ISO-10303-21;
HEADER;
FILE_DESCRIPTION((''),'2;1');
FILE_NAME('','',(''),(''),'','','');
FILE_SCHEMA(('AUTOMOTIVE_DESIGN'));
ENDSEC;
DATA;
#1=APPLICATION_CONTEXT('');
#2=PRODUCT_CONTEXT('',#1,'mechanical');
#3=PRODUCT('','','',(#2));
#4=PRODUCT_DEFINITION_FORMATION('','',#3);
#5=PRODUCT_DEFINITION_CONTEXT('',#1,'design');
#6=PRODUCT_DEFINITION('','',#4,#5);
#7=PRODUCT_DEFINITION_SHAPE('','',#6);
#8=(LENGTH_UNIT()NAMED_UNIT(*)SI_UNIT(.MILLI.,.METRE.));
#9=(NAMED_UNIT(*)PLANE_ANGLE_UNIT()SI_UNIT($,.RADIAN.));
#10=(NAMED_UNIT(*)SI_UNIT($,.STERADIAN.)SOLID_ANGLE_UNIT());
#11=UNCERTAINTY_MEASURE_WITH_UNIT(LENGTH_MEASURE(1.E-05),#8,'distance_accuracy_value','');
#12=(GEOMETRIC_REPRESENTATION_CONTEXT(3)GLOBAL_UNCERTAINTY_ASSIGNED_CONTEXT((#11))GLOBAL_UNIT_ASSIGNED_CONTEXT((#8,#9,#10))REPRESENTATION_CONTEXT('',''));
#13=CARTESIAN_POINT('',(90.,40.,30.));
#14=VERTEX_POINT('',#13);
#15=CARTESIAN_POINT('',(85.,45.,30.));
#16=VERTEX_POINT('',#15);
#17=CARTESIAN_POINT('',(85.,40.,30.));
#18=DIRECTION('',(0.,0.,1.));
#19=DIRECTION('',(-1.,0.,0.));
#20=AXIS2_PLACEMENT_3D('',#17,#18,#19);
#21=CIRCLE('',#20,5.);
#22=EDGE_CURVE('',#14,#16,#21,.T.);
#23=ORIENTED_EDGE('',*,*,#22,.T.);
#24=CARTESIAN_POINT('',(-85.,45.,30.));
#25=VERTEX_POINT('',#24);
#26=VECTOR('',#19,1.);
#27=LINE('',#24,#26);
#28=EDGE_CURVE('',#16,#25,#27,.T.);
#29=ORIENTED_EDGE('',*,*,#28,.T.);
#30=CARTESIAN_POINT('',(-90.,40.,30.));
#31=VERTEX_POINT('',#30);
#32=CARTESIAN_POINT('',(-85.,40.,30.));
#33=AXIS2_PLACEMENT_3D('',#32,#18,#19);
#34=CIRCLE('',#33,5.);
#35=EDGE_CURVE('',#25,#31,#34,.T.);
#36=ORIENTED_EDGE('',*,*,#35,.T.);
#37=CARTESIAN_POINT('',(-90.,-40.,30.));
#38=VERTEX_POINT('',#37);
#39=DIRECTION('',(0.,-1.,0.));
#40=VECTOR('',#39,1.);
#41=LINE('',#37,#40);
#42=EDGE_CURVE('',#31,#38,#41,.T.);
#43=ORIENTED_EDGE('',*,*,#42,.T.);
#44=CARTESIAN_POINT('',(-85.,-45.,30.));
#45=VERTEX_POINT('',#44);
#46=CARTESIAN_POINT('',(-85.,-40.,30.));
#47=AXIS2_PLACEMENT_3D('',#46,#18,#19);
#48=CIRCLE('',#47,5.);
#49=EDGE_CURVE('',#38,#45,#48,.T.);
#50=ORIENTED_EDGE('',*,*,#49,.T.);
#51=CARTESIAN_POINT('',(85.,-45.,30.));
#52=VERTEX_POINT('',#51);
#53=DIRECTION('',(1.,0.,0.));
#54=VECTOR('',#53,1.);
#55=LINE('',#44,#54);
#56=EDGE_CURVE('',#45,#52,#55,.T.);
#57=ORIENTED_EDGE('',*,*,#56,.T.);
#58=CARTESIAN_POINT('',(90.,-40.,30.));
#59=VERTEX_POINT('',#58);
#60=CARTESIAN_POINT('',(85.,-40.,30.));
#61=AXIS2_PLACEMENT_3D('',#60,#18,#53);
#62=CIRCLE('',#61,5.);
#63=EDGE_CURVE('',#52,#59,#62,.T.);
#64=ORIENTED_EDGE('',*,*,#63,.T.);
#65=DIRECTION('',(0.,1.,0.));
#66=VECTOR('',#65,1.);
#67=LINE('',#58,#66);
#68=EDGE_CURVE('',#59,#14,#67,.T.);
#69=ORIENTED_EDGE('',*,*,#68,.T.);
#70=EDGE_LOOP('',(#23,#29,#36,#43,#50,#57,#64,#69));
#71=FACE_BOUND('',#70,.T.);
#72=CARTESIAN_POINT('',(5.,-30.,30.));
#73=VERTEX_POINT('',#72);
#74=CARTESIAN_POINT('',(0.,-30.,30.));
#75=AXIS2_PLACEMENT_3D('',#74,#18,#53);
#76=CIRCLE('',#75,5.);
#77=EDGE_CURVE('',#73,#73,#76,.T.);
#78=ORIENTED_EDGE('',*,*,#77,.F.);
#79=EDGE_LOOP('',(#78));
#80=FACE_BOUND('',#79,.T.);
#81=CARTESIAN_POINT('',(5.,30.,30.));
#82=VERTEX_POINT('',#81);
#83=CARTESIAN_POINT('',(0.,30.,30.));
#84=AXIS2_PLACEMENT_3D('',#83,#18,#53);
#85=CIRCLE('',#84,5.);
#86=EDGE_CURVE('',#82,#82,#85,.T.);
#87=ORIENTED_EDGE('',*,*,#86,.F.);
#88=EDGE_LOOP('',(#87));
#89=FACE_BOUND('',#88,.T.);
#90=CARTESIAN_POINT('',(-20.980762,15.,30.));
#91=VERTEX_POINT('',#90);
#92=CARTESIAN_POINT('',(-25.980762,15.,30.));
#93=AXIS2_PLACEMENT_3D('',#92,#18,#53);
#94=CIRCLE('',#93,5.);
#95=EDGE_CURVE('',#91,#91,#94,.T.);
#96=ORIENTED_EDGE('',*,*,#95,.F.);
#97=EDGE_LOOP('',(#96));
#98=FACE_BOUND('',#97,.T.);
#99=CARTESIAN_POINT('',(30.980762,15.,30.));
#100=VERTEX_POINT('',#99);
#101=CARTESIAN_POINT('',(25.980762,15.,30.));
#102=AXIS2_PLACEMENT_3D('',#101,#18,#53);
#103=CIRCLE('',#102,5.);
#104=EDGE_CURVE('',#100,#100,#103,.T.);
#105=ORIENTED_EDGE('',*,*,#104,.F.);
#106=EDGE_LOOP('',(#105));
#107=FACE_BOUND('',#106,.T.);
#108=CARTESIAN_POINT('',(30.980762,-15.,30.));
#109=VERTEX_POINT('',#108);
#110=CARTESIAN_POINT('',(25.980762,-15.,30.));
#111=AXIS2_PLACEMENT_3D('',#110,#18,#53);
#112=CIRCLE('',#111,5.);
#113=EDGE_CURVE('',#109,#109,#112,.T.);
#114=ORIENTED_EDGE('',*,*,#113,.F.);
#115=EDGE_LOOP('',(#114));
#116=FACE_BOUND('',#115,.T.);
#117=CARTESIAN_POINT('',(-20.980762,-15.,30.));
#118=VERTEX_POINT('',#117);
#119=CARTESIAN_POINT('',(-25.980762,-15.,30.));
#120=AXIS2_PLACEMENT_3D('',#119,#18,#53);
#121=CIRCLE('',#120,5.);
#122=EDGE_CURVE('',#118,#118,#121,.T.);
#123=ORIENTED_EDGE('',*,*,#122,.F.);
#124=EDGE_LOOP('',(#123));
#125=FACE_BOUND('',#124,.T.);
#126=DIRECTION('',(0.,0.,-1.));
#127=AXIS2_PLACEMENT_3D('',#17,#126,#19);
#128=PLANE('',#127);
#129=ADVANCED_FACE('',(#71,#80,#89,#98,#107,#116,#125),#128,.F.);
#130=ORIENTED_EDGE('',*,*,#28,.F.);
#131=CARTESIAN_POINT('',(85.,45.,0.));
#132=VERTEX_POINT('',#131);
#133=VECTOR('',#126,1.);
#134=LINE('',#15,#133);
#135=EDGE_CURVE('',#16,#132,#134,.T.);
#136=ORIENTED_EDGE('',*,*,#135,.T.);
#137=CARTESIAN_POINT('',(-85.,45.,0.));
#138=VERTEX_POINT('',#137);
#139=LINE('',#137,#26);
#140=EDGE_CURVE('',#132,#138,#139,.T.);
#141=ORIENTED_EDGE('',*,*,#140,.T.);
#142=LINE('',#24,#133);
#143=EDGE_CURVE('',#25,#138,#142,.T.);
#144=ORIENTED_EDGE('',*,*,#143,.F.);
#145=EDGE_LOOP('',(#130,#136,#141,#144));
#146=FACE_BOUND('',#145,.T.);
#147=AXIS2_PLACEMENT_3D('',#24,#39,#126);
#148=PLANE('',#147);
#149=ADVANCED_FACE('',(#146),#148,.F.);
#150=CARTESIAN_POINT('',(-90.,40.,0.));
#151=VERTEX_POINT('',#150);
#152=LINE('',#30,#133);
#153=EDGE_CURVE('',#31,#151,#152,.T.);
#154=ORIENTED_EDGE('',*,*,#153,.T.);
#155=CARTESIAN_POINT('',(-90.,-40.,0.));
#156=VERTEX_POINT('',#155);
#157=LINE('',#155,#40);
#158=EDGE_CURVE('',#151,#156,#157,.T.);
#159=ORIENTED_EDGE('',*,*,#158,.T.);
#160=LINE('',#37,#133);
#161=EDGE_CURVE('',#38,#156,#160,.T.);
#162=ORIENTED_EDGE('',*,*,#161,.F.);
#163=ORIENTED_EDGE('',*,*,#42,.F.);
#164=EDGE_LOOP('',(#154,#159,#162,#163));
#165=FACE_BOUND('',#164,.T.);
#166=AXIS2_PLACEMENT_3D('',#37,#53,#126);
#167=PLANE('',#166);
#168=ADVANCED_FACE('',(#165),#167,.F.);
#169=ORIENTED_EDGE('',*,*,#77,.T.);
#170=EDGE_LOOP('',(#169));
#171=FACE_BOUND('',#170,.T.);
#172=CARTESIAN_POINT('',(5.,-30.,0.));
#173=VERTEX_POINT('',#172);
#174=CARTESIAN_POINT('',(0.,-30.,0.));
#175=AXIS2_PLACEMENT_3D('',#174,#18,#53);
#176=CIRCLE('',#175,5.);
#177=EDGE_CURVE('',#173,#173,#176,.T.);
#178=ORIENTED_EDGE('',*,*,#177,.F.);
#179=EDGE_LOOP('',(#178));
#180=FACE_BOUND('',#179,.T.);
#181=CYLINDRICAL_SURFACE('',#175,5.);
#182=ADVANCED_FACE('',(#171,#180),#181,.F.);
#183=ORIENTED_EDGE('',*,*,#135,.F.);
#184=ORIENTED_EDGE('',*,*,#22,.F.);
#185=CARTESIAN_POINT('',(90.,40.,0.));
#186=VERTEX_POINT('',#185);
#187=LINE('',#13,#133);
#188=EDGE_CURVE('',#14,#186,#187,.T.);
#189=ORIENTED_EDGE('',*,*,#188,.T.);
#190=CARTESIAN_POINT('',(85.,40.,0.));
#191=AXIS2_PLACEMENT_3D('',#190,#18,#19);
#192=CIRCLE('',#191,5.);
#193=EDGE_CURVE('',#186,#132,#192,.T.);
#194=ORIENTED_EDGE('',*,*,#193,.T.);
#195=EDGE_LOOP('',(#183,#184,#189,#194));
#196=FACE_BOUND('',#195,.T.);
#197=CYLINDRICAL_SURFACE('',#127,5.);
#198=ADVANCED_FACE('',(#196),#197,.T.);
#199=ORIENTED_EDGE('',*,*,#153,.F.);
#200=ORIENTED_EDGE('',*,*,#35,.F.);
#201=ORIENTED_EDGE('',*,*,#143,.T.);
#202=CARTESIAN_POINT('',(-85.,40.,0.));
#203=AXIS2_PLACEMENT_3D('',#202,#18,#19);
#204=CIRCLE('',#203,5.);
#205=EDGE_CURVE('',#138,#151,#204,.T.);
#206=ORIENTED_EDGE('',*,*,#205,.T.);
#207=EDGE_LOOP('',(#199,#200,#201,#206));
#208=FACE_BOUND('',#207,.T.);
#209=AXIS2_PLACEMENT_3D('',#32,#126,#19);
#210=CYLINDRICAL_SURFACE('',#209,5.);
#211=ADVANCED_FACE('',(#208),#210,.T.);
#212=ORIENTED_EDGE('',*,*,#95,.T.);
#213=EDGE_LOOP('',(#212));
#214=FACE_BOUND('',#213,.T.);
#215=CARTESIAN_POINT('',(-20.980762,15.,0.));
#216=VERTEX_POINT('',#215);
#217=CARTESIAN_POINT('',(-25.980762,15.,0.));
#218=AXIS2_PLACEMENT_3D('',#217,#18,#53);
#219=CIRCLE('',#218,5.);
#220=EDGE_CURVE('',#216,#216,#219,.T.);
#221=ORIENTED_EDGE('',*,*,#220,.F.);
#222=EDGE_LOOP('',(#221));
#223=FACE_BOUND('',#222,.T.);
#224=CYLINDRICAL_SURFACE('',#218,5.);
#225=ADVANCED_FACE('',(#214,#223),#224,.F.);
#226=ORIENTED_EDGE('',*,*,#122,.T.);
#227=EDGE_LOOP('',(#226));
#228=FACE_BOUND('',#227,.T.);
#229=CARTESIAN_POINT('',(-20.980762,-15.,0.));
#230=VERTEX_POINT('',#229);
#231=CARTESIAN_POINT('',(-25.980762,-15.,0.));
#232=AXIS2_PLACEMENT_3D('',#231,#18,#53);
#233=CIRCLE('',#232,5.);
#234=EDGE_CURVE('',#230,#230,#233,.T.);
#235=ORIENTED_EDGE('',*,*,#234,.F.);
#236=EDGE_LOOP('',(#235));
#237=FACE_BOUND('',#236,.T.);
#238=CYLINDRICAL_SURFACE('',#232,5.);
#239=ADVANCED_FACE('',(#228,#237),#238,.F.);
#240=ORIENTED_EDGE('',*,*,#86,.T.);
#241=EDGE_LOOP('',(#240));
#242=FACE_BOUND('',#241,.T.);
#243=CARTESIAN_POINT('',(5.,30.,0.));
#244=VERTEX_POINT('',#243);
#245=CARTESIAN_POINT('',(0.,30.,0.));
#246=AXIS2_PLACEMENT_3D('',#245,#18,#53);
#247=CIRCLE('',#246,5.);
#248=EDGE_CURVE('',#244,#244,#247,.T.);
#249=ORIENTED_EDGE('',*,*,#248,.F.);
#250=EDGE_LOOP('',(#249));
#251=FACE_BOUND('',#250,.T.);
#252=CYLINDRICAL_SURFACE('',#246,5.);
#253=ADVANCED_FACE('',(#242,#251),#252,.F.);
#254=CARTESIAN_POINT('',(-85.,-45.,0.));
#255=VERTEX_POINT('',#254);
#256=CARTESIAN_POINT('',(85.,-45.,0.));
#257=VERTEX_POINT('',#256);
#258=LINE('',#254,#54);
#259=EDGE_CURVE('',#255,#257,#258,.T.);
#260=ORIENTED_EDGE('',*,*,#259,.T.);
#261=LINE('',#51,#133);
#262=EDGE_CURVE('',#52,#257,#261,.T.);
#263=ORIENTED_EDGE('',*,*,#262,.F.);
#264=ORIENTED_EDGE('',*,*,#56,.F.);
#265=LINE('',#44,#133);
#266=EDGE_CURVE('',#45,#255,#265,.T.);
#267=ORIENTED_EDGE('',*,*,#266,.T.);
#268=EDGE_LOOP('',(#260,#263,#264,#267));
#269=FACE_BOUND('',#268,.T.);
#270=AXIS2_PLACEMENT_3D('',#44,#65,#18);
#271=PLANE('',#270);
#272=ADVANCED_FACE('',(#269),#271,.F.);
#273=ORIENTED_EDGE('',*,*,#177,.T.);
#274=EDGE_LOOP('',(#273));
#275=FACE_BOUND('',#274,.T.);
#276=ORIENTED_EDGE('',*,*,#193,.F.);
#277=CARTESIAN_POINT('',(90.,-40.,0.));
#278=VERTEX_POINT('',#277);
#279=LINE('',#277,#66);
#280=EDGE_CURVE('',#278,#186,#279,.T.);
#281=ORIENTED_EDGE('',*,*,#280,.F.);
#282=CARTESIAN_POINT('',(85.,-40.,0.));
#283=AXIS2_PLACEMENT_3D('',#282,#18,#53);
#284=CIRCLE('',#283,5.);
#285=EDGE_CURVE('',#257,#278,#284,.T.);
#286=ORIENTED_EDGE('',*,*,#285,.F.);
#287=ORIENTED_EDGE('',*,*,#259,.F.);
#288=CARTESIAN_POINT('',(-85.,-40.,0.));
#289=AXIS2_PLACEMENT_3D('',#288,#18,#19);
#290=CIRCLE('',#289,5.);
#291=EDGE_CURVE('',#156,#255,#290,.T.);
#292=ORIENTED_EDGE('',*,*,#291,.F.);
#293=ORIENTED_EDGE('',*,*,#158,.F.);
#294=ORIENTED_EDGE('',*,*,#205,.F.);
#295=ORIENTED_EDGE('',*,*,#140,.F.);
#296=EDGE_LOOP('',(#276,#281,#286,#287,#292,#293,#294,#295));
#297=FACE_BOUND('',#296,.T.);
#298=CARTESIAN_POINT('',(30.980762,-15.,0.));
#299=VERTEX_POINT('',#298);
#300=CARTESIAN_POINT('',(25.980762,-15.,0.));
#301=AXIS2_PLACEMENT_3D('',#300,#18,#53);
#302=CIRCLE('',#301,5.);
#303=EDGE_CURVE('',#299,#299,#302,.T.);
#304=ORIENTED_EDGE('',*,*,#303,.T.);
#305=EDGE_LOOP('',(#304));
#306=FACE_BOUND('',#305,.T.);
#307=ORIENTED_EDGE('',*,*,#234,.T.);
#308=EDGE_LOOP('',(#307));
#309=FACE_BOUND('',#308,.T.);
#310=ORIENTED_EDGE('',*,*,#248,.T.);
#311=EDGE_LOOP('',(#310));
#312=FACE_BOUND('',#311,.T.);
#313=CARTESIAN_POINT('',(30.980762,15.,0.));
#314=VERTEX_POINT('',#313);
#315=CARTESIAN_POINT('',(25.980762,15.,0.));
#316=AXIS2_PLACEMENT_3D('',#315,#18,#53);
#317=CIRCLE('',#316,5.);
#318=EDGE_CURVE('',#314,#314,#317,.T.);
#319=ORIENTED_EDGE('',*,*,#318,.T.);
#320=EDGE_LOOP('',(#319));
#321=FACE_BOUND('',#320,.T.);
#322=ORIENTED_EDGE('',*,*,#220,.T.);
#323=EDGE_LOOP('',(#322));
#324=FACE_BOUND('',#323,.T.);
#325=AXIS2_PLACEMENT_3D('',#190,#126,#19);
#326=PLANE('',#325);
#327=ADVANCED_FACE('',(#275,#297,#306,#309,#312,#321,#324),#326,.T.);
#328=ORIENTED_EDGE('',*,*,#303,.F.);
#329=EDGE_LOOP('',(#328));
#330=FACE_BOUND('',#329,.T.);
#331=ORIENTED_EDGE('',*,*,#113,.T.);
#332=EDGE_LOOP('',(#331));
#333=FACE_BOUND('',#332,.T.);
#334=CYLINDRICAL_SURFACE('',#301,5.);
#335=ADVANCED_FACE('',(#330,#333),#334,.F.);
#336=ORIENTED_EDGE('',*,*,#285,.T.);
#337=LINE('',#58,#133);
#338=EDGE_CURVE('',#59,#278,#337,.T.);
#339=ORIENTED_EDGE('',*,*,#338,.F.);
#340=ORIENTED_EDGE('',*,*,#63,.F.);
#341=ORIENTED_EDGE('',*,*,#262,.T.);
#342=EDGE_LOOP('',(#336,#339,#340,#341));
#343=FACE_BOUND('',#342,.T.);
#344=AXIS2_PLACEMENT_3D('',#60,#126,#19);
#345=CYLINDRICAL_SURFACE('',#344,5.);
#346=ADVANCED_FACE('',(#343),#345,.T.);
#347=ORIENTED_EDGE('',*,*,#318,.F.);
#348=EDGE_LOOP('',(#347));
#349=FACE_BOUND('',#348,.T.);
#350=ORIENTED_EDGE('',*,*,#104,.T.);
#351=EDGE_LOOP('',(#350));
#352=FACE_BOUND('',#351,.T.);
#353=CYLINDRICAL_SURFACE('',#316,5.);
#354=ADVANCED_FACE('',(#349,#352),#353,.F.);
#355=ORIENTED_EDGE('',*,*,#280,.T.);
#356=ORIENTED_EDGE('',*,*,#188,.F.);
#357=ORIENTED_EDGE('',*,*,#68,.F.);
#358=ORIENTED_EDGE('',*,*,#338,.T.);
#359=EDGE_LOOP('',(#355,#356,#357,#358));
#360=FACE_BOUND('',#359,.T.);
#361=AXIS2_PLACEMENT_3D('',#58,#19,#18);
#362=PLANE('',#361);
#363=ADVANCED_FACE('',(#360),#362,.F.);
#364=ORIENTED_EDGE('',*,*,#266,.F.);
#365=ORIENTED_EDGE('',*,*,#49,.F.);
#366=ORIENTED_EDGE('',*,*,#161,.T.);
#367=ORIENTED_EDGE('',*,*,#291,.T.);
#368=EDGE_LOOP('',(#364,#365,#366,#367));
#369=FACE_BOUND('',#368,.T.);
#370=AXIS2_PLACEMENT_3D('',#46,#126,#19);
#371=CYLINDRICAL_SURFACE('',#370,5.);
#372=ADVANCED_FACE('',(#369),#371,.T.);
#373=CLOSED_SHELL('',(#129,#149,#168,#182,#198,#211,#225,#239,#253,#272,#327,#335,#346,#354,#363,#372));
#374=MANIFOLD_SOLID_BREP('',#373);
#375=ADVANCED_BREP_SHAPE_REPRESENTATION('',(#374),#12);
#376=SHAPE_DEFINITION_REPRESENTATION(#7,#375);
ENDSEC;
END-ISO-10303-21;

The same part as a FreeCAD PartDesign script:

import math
import FreeCAD as App
import Part
import Sketcher
from FreeCAD import Vector

doc = App.newDocument("Part")
body = doc.addObject("PartDesign::Body", "Body")

sketch1 = body.newObject("Sketcher::SketchObject", "Sketch")
sketch1.AttachmentSupport = (doc.getObject("XY_Plane"), [""])
sketch1.MapMode = "FlatFace"
sketch1.addGeometry(Part.LineSegment(Vector(-85, -45, 0), Vector(85, -45, 0)), False)
sketch1.addGeometry(Part.ArcOfCircle(Part.Circle(Vector(85, -40, 0), Vector(0, 0, 1), 5), math.radians(-90), math.radians(0)), False)
sketch1.addGeometry(Part.LineSegment(Vector(90, -40, 0), Vector(90, 40, 0)), False)
sketch1.addGeometry(Part.ArcOfCircle(Part.Circle(Vector(85, 40, 0), Vector(0, 0, 1), 5), math.radians(0), math.radians(90)), False)
sketch1.addGeometry(Part.LineSegment(Vector(85, 45, 0), Vector(-85, 45, 0)), False)
sketch1.addGeometry(Part.ArcOfCircle(Part.Circle(Vector(-85, 40, 0), Vector(0, 0, 1), 5), math.radians(90), math.radians(180)), False)
sketch1.addGeometry(Part.LineSegment(Vector(-90, 40, 0), Vector(-90, -40, 0)), False)
sketch1.addGeometry(Part.ArcOfCircle(Part.Circle(Vector(-85, -40, 0), Vector(0, 0, 1), 5), math.radians(180), math.radians(270)), False)
sketch1.addConstraint(Sketcher.Constraint("Tangent", 0, 2, 1, 1))
sketch1.addConstraint(Sketcher.Constraint("Tangent", 1, 2, 2, 1))
sketch1.addConstraint(Sketcher.Constraint("Tangent", 2, 2, 3, 1))
sketch1.addConstraint(Sketcher.Constraint("Tangent", 3, 2, 4, 1))
sketch1.addConstraint(Sketcher.Constraint("Tangent", 4, 2, 5, 1))
sketch1.addConstraint(Sketcher.Constraint("Tangent", 5, 2, 6, 1))
sketch1.addConstraint(Sketcher.Constraint("Tangent", 6, 2, 7, 1))
sketch1.addConstraint(Sketcher.Constraint("Tangent", 7, 2, 0, 1))
sketch1.addConstraint(Sketcher.Constraint("Horizontal", 0))
sketch1.addConstraint(Sketcher.Constraint("Vertical", 2))
sketch1.addConstraint(Sketcher.Constraint("Horizontal", 4))
sketch1.addConstraint(Sketcher.Constraint("Vertical", 6))
sketch1.addConstraint(Sketcher.Constraint("Equal", 1, 3))
sketch1.addConstraint(Sketcher.Constraint("Equal", 3, 5))
sketch1.addConstraint(Sketcher.Constraint("Equal", 5, 7))
sketch1.addConstraint(Sketcher.Constraint("Symmetric", 1, 3, 5, 3, -1, 1))
sketch1.addConstraint(Sketcher.Constraint("Radius", 1, 5.0))
sketch1.addConstraint(Sketcher.Constraint("DistanceX", 0, 1, 0, 2, 170.0))
sketch1.addConstraint(Sketcher.Constraint("DistanceY", 2, 1, 2, 2, 80.0))
pad1 = body.newObject("PartDesign::Pad", "Pad")
pad1.Profile = sketch1
pad1.Length = 30

sketch2 = body.newObject("Sketcher::SketchObject", "Sketch001")
sketch2.AttachmentSupport = (doc.getObject("XY_Plane"), [""])
sketch2.MapMode = "FlatFace"
sketch2.AttachmentOffset = App.Placement(Vector(0, 0, 30), App.Rotation())
sketch2.addGeometry(Part.Circle(Vector(0, 30, 0), Vector(0, 0, 1), 5), False)
sketch2.addGeometry(Part.Circle(Vector(26, 15, 0), Vector(0, 0, 1), 5), False)
sketch2.addGeometry(Part.Circle(Vector(26, -15, 0), Vector(0, 0, 1), 5), False)
sketch2.addGeometry(Part.Circle(Vector(0, -30, 0), Vector(0, 0, 1), 5), False)
sketch2.addGeometry(Part.Circle(Vector(-26, -15, 0), Vector(0, 0, 1), 5), False)
sketch2.addGeometry(Part.Circle(Vector(-26, 15, 0), Vector(0, 0, 1), 5), False)
sketch2.addConstraint(Sketcher.Constraint("Equal", 0, 1))
sketch2.addConstraint(Sketcher.Constraint("Equal", 1, 2))
sketch2.addConstraint(Sketcher.Constraint("Equal", 2, 3))
sketch2.addConstraint(Sketcher.Constraint("Equal", 3, 4))
sketch2.addConstraint(Sketcher.Constraint("Equal", 4, 5))
sketch2.addConstraint(Sketcher.Constraint("Symmetric", 0, 3, 3, 3, -1, 1))
sketch2.addConstraint(Sketcher.Constraint("Symmetric", 1, 3, 4, 3, -1, 1))
sketch2.addConstraint(Sketcher.Constraint("Symmetric", 2, 3, 5, 3, -1, 1))
sketch2.addConstraint(Sketcher.Constraint("Symmetric", 2, 3, 4, 3, -2))
sketch2.addConstraint(Sketcher.Constraint("PointOnObject", 0, 3, -2))
sketch2.addConstraint(Sketcher.Constraint("Diameter", 0, 10.0))
sketch2.addConstraint(Sketcher.Constraint("DistanceY", -1, 1, 0, 3, 30.0))
sketch2.addConstraint(Sketcher.Constraint("DistanceY", -1, 1, 1, 3, 15.0))
sketch2.addConstraint(Sketcher.Constraint("DistanceX", -1, 1, 1, 3, 25.980762))
pocket1 = body.newObject("PartDesign::Pocket", "Pocket")
pocket1.Profile = sketch2
pocket1.Length = 30

doc.recompute()
